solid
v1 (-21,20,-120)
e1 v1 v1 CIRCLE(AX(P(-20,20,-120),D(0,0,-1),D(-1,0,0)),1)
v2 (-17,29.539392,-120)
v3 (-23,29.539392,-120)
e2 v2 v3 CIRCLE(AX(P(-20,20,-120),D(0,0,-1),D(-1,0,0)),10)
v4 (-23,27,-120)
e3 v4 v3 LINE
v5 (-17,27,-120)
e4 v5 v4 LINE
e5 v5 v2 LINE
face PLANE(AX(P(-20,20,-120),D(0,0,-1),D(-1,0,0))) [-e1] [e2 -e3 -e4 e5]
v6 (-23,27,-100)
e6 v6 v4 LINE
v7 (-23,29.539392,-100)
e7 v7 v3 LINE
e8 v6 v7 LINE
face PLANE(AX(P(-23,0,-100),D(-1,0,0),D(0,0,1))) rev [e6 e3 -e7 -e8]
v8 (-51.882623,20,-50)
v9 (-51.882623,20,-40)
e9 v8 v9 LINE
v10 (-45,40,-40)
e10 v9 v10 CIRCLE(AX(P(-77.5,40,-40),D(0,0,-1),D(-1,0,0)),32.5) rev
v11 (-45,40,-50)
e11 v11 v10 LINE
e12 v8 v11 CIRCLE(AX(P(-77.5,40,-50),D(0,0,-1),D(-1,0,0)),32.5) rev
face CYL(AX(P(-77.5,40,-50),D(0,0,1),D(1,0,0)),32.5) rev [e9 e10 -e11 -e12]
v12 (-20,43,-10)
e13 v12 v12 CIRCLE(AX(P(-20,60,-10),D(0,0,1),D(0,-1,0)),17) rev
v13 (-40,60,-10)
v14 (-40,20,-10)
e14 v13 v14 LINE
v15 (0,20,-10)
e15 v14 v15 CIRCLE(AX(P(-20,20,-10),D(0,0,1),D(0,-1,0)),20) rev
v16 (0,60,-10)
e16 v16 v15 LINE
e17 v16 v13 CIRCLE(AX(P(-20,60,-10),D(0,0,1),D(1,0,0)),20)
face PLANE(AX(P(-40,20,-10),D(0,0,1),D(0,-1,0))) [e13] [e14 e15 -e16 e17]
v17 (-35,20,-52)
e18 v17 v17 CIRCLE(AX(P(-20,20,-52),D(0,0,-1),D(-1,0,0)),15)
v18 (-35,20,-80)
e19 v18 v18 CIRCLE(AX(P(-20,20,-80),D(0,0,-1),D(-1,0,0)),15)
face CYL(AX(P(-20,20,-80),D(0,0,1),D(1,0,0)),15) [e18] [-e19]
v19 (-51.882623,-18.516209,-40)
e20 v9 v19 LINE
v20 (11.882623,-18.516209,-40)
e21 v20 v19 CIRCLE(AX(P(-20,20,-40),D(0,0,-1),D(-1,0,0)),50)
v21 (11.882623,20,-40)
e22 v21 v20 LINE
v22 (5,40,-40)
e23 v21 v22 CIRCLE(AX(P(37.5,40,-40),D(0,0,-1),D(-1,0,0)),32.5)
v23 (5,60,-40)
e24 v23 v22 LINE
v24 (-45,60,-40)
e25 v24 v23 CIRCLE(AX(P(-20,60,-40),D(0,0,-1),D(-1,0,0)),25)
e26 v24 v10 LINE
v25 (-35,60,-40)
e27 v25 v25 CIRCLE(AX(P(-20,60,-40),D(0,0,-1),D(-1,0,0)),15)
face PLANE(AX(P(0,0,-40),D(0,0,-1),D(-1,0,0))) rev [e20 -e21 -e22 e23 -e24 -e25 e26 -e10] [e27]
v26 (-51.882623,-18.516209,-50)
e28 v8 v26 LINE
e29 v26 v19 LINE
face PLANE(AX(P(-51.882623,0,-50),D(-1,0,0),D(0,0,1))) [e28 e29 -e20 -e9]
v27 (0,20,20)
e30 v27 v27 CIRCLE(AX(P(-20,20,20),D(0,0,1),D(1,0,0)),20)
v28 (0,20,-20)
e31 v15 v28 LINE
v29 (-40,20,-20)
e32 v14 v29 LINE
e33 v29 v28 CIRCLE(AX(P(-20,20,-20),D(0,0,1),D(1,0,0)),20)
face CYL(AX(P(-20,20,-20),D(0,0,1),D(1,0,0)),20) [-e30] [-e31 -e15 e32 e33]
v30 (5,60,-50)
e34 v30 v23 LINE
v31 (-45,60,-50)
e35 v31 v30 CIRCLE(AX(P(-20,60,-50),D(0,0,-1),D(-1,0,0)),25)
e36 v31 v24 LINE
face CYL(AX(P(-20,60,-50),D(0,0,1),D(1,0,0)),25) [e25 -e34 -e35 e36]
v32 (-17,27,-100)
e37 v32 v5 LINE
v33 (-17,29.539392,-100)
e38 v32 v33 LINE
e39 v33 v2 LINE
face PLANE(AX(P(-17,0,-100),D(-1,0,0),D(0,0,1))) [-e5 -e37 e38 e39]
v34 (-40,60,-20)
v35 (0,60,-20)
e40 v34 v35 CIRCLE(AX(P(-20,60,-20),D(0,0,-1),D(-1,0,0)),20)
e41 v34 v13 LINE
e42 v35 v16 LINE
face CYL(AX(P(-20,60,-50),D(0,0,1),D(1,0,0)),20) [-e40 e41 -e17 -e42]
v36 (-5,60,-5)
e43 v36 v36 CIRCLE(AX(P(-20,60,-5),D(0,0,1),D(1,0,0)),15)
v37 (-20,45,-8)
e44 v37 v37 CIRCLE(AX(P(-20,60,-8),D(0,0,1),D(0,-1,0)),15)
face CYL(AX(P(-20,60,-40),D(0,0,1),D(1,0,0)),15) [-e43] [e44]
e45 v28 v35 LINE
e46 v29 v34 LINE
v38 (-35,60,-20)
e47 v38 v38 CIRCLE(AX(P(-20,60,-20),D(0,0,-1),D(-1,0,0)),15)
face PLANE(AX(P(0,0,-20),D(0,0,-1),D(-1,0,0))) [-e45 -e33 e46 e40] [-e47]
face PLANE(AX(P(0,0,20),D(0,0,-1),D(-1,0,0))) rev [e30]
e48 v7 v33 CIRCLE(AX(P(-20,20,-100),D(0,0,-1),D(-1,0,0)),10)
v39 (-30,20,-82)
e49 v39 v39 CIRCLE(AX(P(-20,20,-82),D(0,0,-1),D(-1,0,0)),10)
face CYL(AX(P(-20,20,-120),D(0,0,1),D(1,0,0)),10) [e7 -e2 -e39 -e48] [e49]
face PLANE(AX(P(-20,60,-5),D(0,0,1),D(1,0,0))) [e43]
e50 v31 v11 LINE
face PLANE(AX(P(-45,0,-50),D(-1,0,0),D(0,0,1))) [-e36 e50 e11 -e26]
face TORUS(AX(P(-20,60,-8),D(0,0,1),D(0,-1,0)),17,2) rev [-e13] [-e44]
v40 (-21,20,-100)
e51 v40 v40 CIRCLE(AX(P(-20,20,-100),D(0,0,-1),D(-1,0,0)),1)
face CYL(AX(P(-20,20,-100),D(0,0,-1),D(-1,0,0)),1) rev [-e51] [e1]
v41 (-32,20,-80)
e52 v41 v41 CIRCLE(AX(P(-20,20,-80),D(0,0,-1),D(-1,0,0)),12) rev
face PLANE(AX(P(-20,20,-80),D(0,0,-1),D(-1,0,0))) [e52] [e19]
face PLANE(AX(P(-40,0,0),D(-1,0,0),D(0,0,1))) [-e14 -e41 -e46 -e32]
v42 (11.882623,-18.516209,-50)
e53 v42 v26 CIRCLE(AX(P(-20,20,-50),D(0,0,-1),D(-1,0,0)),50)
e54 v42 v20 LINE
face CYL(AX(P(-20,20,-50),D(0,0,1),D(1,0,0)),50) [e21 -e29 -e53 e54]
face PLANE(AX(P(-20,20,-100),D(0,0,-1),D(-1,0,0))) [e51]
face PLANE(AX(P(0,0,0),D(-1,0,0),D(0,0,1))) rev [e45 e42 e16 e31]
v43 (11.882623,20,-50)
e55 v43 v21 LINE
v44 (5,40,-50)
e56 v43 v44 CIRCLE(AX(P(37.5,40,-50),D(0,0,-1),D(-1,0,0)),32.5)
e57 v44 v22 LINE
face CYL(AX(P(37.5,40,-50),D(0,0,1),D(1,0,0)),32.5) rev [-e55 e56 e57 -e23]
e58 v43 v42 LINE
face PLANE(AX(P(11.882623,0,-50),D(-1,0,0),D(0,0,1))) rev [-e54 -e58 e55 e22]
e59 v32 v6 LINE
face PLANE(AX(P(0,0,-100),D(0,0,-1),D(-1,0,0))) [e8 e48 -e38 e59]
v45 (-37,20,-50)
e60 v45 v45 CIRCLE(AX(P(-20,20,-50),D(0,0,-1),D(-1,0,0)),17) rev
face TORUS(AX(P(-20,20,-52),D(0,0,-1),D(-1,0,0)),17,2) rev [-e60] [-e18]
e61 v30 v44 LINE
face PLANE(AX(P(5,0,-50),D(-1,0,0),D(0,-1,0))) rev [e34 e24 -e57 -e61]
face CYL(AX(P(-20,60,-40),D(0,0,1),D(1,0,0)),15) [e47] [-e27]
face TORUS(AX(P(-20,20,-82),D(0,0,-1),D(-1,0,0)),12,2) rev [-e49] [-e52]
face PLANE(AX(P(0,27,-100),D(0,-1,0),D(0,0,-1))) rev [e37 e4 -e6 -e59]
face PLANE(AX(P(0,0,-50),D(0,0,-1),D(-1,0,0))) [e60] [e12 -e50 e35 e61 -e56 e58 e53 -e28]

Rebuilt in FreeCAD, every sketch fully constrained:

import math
import FreeCAD as App
import Part
import Sketcher

V = App.Vector
Q = App.Units.Quantity


def edges_at(feature, points):
    """Names of the edges that pass closest to the given points."""
    edges = feature.Shape.Edges
    near = lambda p: min(range(len(edges)), key=lambda i: edges[i].distToShape(Part.Vertex(*p))[0])
    return sorted({f"Edge{near(p) + 1}" for p in points})

doc = App.newDocument("Part")
body = doc.addObject("PartDesign::Body", "Body")

# Sketch on XY plane
sketch1 = body.newObject("Sketcher::SketchObject", "Sketch")
sketch1.AttachmentSupport = (doc.getObject("XY_Plane"), [""])
sketch1.MapMode = "FlatFace"
sketch1.addGeometry([
    Part.LineSegment(V(-40, 40, 0), V(-40, 0, 0)),
    Part.LineSegment(V(-40, 0, 0), V(0, 0, 0)),
    Part.LineSegment(V(0, 0, 0), V(0, 40, 0)),
    Part.LineSegment(V(0, 40, 0), V(-40, 40, 0)),
], False)
sketch1.addConstraint([
    Sketcher.Constraint("Coincident", 0, 2, 1, 1),
    Sketcher.Constraint("Coincident", 1, 2, 2, 1),
    Sketcher.Constraint("Coincident", 2, 2, 3, 1),
    Sketcher.Constraint("Coincident", 3, 2, 0, 1),
    Sketcher.Constraint("Vertical", 0),
    Sketcher.Constraint("Horizontal", 1),
    Sketcher.Constraint("Vertical", 2),
    Sketcher.Constraint("Horizontal", 3),
    Sketcher.Constraint("Coincident", 1, 2, -1, 1),
    Sketcher.Constraint("Equal", 3, 0),
    Sketcher.Constraint("DistanceX", 1, 1, 1, 2, Q("40 mm")),
])
pad1 = body.newObject("PartDesign::Pad", "Pad")
pad1.Profile = sketch1
pad1.Length = 40
pad1.Midplane = True

# Sketch on XY plane
sketch2 = body.newObject("Sketcher::SketchObject", "Sketch001")
sketch2.AttachmentSupport = (doc.getObject("XY_Plane"), [""])
sketch2.MapMode = "FlatFace"
sketch2.AttachmentOffset = App.Placement(V(0, 0, 20), App.Rotation())
sketch2.addGeometry([
    Part.LineSegment(V(-40, 40, 0), V(-40, 20, 0)),  # 0
    Part.ArcOfCircle(Part.Circle(V(-20, 20, 0), V(0, 0, 1), 20), math.radians(90), math.radians(180)),  # 1
    Part.LineSegment(V(-20, 40, 0), V(-40, 40, 0)),  # 2
    Part.ArcOfCircle(Part.Circle(V(-20, 20, 0), V(0, 0, 1), 20), math.radians(0), math.radians(90)),  # 3
    Part.LineSegment(V(0, 20, 0), V(0, 40, 0)),  # 4
    Part.LineSegment(V(0, 40, 0), V(-20, 40, 0)),  # 5
    Part.ArcOfCircle(Part.Circle(V(-20, 20, 0), V(0, 0, 1), 20), math.radians(-90), math.radians(0)),  # 6
    Part.LineSegment(V(-20, 0, 0), V(0, 0, 0)),  # 7
    Part.LineSegment(V(0, 0, 0), V(0, 20, 0)),  # 8
    Part.LineSegment(V(-40, 20, 0), V(-40, 0, 0)),  # 9
    Part.LineSegment(V(-40, 0, 0), V(-20, 0, 0)),  # 10
    Part.ArcOfCircle(Part.Circle(V(-20, 20, 0), V(0, 0, 1), 20), math.radians(180), math.radians(270)),  # 11
], False)
sketch2.addConstraint([
    Sketcher.Constraint("Tangent", 0, 2, 1, 2),
    Sketcher.Constraint("Tangent", 1, 1, 2, 1),
    Sketcher.Constraint("Coincident", 2, 2, 0, 1),
    Sketcher.Constraint("Tangent", 3, 1, 4, 1),
    Sketcher.Constraint("Coincident", 4, 2, 5, 1),
    Sketcher.Constraint("Tangent", 5, 2, 3, 2),
    Sketcher.Constraint("Tangent", 6, 1, 7, 1),
    Sketcher.Constraint("Coincident", 7, 2, 8, 1),
    Sketcher.Constraint("Tangent", 8, 2, 6, 2),
    Sketcher.Constraint("Coincident", 9, 2, 10, 1),
    Sketcher.Constraint("Tangent", 10, 2, 11, 2),
    Sketcher.Constraint("Tangent", 11, 1, 9, 1),
    Sketcher.Constraint("Vertical", 0),
    Sketcher.Constraint("Horizontal", 2),
    Sketcher.Constraint("Vertical", 4),
    Sketcher.Constraint("Horizontal", 5),
    Sketcher.Constraint("Horizontal", 7),
    Sketcher.Constraint("Vertical", 8),
    Sketcher.Constraint("Vertical", 9),
    Sketcher.Constraint("Horizontal", 10),
    Sketcher.Constraint("Coincident", 7, 2, -1, 1),
    Sketcher.Constraint("Coincident", 3, 3, 1, 3),
    Sketcher.Constraint("Coincident", 6, 3, 1, 3),
    Sketcher.Constraint("Coincident", 11, 3, 1, 3),
    Sketcher.Constraint("Equal", 1, 3),
    Sketcher.Constraint("Equal", 3, 6),
    Sketcher.Constraint("Equal", 6, 11),
    Sketcher.Constraint("Radius", 1, Q("20 mm")),
])
pocket1 = body.newObject("PartDesign::Pocket", "Pocket")
pocket1.Profile = sketch2
pocket1.Length = 40

# Sketch on YZ plane
sketch3 = body.newObject("Sketcher::SketchObject", "Sketch002")
sketch3.AttachmentSupport = (doc.getObject("YZ_Plane"), [""])
sketch3.MapMode = "FlatFace"
sketch3.addGeometry([
    Part.LineSegment(V(85, -10, 0), V(20, -10, 0)),
    Part.LineSegment(V(20, -10, 0), V(20, -20, 0)),
    Part.LineSegment(V(20, -20, 0), V(85, -20, 0)),
    Part.LineSegment(V(85, -20, 0), V(85, -10, 0)),
], False)
sketch3.addConstraint([
    Sketcher.Constraint("Coincident", 0, 2, 1, 1),
    Sketcher.Constraint("Coincident", 1, 2, 2, 1),
    Sketcher.Constraint("Coincident", 2, 2, 3, 1),
    Sketcher.Constraint("Coincident", 3, 2, 0, 1),
    Sketcher.Constraint("Horizontal", 0),
    Sketcher.Constraint("Vertical", 1),
    Sketcher.Constraint("Horizontal", 2),
    Sketcher.Constraint("Vertical", 3),
    Sketcher.Constraint("DistanceX", 0, 2, 0, 1, Q("65 mm")),
    Sketcher.Constraint("DistanceY", 1, 2, 1, 1, Q("10 mm")),
    Sketcher.Constraint("DistanceX", -1, 1, 0, 2, Q("20 mm")),
    Sketcher.Constraint("DistanceY", 0, 2, -1, 1, Q("10 mm")),
])
pad2 = body.newObject("PartDesign::Pad", "Pad001")
pad2.Profile = sketch3
pad2.Length = 40
pad2.Reversed = True

# Sketch on XY plane
sketch4 = body.newObject("Sketcher::SketchObject", "Sketch003")
sketch4.AttachmentSupport = (doc.getObject("XY_Plane"), [""])
sketch4.MapMode = "FlatFace"
sketch4.AttachmentOffset = App.Placement(V(0, 0, -10), App.Rotation())
sketch4.addGeometry([
    Part.LineSegment(V(0, 60, 0), V(0, 85, 0)),
    Part.LineSegment(V(0, 85, 0), V(-40, 85, 0)),
    Part.LineSegment(V(-40, 85, 0), V(-40, 60, 0)),
    Part.ArcOfCircle(Part.Circle(V(-20, 60, 0), V(0, 0, 1), 20), math.radians(0), math.radians(180)),
], False)
sketch4.addConstraint([
    Sketcher.Constraint("Coincident", 0, 2, 1, 1),
    Sketcher.Constraint("Coincident", 1, 2, 2, 1),
    Sketcher.Constraint("Tangent", 2, 2, 3, 2),
    Sketcher.Constraint("Tangent", 3, 1, 0, 1),
    Sketcher.Constraint("Vertical", 0),
    Sketcher.Constraint("Horizontal", 1),
    Sketcher.Constraint("Vertical", 2),
    Sketcher.Constraint("PointOnObject", 0, 2, -2),
    Sketcher.Constraint("Radius", 3, Q("20 mm")),
    Sketcher.Constraint("DistanceY", 0, 1, 0, 2, Q("25 mm")),
    Sketcher.Constraint("DistanceY", -1, 1, 3, 3, Q("60 mm")),
])
pocket2 = body.newObject("PartDesign::Pocket", "Pocket001")
pocket2.Profile = sketch4
pocket2.Length = 40

# Sketch on XY plane
sketch5 = body.newObject("Sketcher::SketchObject", "Sketch004")
sketch5.AttachmentSupport = (doc.getObject("XY_Plane"), [""])
sketch5.MapMode = "FlatFace"
sketch5.AttachmentOffset = App.Placement(V(0, 0, -10), App.Rotation())
sketch5.addGeometry(Part.Circle(V(-20, 60, 0), V(0, 0, 1), 15), False)
sketch5.addConstraint([
    Sketcher.Constraint("Diameter", 0, Q("30 mm")),
    Sketcher.Constraint("DistanceX", 0, 3, -1, 1, Q("20 mm")),
    Sketcher.Constraint("DistanceY", -1, 1, 0, 3, Q("60 mm")),
])
pad3 = body.newObject("PartDesign::Pad", "Pad002")
pad3.Profile = sketch5
pad3.Type = "TwoLengths"
pad3.Length = 5
pad3.Length2 = 30
doc.recompute()

fillet = body.newObject("PartDesign::Fillet", "Fillet")
fillet.Base = (pad3, edges_at(pad3, [(-35, 60, -10)]))
fillet.Radius = 2
body2 = doc.addObject("PartDesign::Body", "Body001")

# Sketch on XY plane
sketch6 = body2.newObject("Sketcher::SketchObject", "Sketch005")
sketch6.AttachmentSupport = (doc.getObject("XY_Plane001"), [""])
sketch6.MapMode = "FlatFace"
sketch6.AttachmentOffset = App.Placement(V(0, 0, -40), App.Rotation())
sketch6.addGeometry([
    Part.ArcOfCircle(Part.Circle(V(-20, 60, 0), V(0, 0, 1), 25), math.radians(0), math.radians(180)),  # 0
    Part.LineSegment(V(5, 60, 0), V(5, 40, 0)),  # 1
    Part.ArcOfCircle(Part.Circle(V(37, 40, 0), V(0, 0, 1), 32), math.radians(180), math.radians(218)),  # 2
    Part.LineSegment(V(12, 20, 0), V(12, -19, 0)),  # 3
    Part.ArcOfCircle(Part.Circle(V(-20, 20, 0), V(0, 0, 1), 50), math.radians(-130), math.radians(-50)),  # 4
    Part.LineSegment(V(-52, -19, 0), V(-52, 20, 0)),  # 5
    Part.ArcOfCircle(Part.Circle(V(-77, 40, 0), V(0, 0, 1), 32), math.radians(-38), math.radians(0)),  # 6
    Part.LineSegment(V(-45, 40, 0), V(-45, 60, 0)),  # 7
    Part.Circle(V(-20, 60, 0), V(0, 0, 1), 15),  # 8
], False)
sketch6.addConstraint([
    Sketcher.Constraint("Tangent", 0, 1, 1, 1),
    Sketcher.Constraint("Tangent", 1, 2, 2, 1),
    Sketcher.Constraint("Coincident", 2, 2, 3, 1),
    Sketcher.Constraint("Coincident", 3, 2, 4, 2),
    Sketcher.Constraint("Coincident", 4, 1, 5, 1),
    Sketcher.Constraint("Coincident", 5, 2, 6, 1),
    Sketcher.Constraint("Tangent", 6, 2, 7, 1),
    Sketcher.Constraint("Tangent", 7, 2, 0, 2),
    Sketcher.Constraint("Vertical", 1),
    Sketcher.Constraint("Vertical", 3),
    Sketcher.Constraint("Vertical", 5),
    Sketcher.Constraint("Vertical", 7),
    Sketcher.Constraint("Coincident", 8, 3, 0, 3),
    Sketcher.Constraint("Equal", 2, 6),
    Sketcher.Constraint("Horizontal", 2, 3, 6, 3),
    Sketcher.Constraint("Horizontal", 4, 3, 2, 2),
    Sketcher.Constraint("Horizontal", 3, 2, 4, 1),
    Sketcher.Constraint("Horizontal", 2, 2, 5, 2),
    Sketcher.Constraint("Diameter", 8, Q("30 mm")),
    Sketcher.Constraint("Radius", 0, Q("25 mm")),
    Sketcher.Constraint("Radius", 4, Q("50 mm")),
    Sketcher.Constraint("Radius", 2, Q("32.5 mm")),
    Sketcher.Constraint("DistanceY", 1, 2, 1, 1, Q("20 mm")),
    Sketcher.Constraint("DistanceX", 0, 3, -1, 1, Q("20 mm")),
    Sketcher.Constraint("DistanceY", -1, 1, 0, 3, Q("60 mm")),
    Sketcher.Constraint("DistanceY", -1, 1, 4, 3, Q("20 mm")),
])
pad4 = body2.newObject("PartDesign::Pad", "Pad003")
pad4.Profile = sketch6
pad4.Length = 10
pad4.Reversed = True
body.AllowCompound = True
doc.recompute()

boolean = body.newObject("PartDesign::Boolean", "Boolean")
boolean.Type = "Fuse"
boolean.addObjects([body2])

# Sketch on XY plane
sketch7 = body.newObject("Sketcher::SketchObject", "Sketch006")
sketch7.AttachmentSupport = (doc.getObject("XY_Plane"), [""])
sketch7.MapMode = "FlatFace"
sketch7.AttachmentOffset = App.Placement(V(0, 0, -40), App.Rotation())
sketch7.addGeometry(Part.Circle(V(-20, 60, 0), V(0, 0, 1), 15), False)
sketch7.addConstraint([
    Sketcher.Constraint("Diameter", 0, Q("30 mm")),
    Sketcher.Constraint("DistanceX", 0, 3, -1, 1, Q("20 mm")),
    Sketcher.Constraint("DistanceY", -1, 1, 0, 3, Q("60 mm")),
])
pad5 = body.newObject("PartDesign::Pad", "Pad004")
pad5.Profile = sketch7
pad5.Length = 10
pad5.Reversed = True

# Sketch on XY plane
sketch8 = body.newObject("Sketcher::SketchObject", "Sketch007")
sketch8.AttachmentSupport = (doc.getObject("XY_Plane"), [""])
sketch8.MapMode = "FlatFace"
sketch8.AttachmentOffset = App.Placement(V(0, 0, -50), App.Rotation())
sketch8.addGeometry(Part.Circle(V(-20, 20, 0), V(0, 0, 1), 15), False)
sketch8.addConstraint([
    Sketcher.Constraint("Diameter", 0, Q("30 mm")),
    Sketcher.Constraint("DistanceX", 0, 3, -1, 1, Q("20 mm")),
    Sketcher.Constraint("DistanceY", -1, 1, 0, 3, Q("20 mm")),
])
pad6 = body.newObject("PartDesign::Pad", "Pad005")
pad6.Profile = sketch8
pad6.Length = 30
pad6.Reversed = True

# Sketch on XY plane
sketch9 = body.newObject("Sketcher::SketchObject", "Sketch008")
sketch9.AttachmentSupport = (doc.getObject("XY_Plane"), [""])
sketch9.MapMode = "FlatFace"
sketch9.AttachmentOffset = App.Placement(V(0, 0, -80), App.Rotation())
sketch9.addGeometry(Part.Circle(V(-20, 20, 0), V(0, 0, 1), 10), False)
sketch9.addConstraint([
    Sketcher.Constraint("Diameter", 0, Q("20 mm")),
    Sketcher.Constraint("DistanceX", 0, 3, -1, 1, Q("20 mm")),
    Sketcher.Constraint("DistanceY", -1, 1, 0, 3, Q("20 mm")),
])
pad7 = body.newObject("PartDesign::Pad", "Pad006")
pad7.Profile = sketch9
pad7.Length = 40
pad7.Reversed = True
doc.recompute()

fillet2 = body.newObject("PartDesign::Fillet", "Fillet001")
fillet2.Base = (pad7, edges_at(pad7, [(-5, 20, -50)]))
fillet2.Radius = 2
doc.recompute()

fillet3 = body.newObject("PartDesign::Fillet", "Fillet002")
fillet3.Base = (fillet2, edges_at(fillet2, [(-10, 20, -80)]))
fillet3.Radius = 2

# Sketch on XY plane
sketch10 = body.newObject("Sketcher::SketchObject", "Sketch009")
sketch10.AttachmentSupport = (doc.getObject("XY_Plane"), [""])
sketch10.MapMode = "FlatFace"
sketch10.AttachmentOffset = App.Placement(V(0, 0, -120), App.Rotation())
sketch10.addGeometry(Part.Circle(V(-20, 20, 0), V(0, 0, 1), 1), False)
sketch10.addConstraint([
    Sketcher.Constraint("Diameter", 0, Q("2 mm")),
    Sketcher.Constraint("DistanceX", 0, 3, -1, 1, Q("20 mm")),
    Sketcher.Constraint("DistanceY", -1, 1, 0, 3, Q("20 mm")),
])
pocket3 = body.newObject("PartDesign::Pocket", "Pocket002")
pocket3.Profile = sketch10
pocket3.Length = 20
pocket3.Reversed = True

# Sketch on XY plane
sketch11 = body.newObject("Sketcher::SketchObject", "Sketch010")
sketch11.AttachmentSupport = (doc.getObject("XY_Plane"), [""])
sketch11.MapMode = "FlatFace"
sketch11.AttachmentOffset = App.Placement(V(0, 0, -120), App.Rotation())
sketch11.addGeometry([
    Part.LineSegment(V(-17, 27, 0), V(-23, 27, 0)),
    Part.LineSegment(V(-23, 27, 0), V(-23, 29.5, 0)),
    Part.ArcOfCircle(Part.Circle(V(-20, 20, 0), V(0, 0, 1), 10), math.radians(73), math.radians(107)),
    Part.LineSegment(V(-17, 29.5, 0), V(-17, 27, 0)),
], False)
sketch11.addConstraint([
    Sketcher.Constraint("Coincident", 0, 2, 1, 1),
    Sketcher.Constraint("Coincident", 1, 2, 2, 2),
    Sketcher.Constraint("Coincident", 2, 1, 3, 1),
    Sketcher.Constraint("Coincident", 3, 2, 0, 1),
    Sketcher.Constraint("Horizontal", 0),
    Sketcher.Constraint("Vertical", 1),
    Sketcher.Constraint("Vertical", 3),
    Sketcher.Constraint("Horizontal", 1, 2, 2, 1),
    Sketcher.Constraint("Radius", 2, Q("10 mm")),
    Sketcher.Constraint("DistanceX", 0, 2, 0, 1, Q("6 mm")),
    Sketcher.Constraint("DistanceX", 2, 3, -1, 1, Q("20 mm")),
    Sketcher.Constraint("DistanceY", -1, 1, 2, 3, Q("20 mm")),
    Sketcher.Constraint("DistanceY", -1, 1, 0, 2, Q("27 mm")),
])
pocket4 = body.newObject("PartDesign::Pocket", "Pocket003")
pocket4.Profile = sketch11
pocket4.Length = 20
pocket4.Reversed = True

doc.recompute()
